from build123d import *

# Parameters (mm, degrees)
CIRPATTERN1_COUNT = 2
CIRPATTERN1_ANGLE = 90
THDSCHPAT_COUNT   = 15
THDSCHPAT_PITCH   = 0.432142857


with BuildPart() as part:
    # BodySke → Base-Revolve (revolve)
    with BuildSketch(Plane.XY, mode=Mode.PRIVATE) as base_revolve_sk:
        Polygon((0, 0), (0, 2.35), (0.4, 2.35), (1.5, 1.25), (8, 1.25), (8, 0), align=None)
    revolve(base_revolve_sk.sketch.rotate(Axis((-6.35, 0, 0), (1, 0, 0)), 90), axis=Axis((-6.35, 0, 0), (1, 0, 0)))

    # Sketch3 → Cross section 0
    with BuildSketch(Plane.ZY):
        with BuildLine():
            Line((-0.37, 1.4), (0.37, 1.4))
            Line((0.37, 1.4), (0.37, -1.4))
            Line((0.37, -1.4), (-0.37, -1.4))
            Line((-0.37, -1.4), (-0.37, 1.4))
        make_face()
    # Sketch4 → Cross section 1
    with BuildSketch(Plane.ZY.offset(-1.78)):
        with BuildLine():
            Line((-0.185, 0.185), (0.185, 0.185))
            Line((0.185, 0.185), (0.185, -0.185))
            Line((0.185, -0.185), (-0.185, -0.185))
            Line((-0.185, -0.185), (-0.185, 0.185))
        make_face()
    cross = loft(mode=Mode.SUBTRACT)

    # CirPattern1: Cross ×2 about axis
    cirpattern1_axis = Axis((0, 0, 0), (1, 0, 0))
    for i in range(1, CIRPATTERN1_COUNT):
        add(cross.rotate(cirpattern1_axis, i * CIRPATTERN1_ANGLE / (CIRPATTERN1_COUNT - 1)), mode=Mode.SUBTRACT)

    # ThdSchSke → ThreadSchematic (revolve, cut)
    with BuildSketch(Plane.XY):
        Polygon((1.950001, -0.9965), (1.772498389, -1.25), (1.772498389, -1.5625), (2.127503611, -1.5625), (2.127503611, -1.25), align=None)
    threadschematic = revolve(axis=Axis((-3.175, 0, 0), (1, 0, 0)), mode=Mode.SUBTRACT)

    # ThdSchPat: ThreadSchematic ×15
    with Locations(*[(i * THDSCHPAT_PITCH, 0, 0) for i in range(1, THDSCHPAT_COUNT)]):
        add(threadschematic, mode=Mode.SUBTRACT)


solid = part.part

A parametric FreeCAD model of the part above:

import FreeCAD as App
import Part
import Sketcher

V = App.Vector
Q = App.Units.Quantity

doc = App.newDocument("Part")
body = doc.addObject("PartDesign::Body", "Body")

# Sketch on XY plane
sketch1 = body.newObject("Sketcher::SketchObject", "Sketch")
sketch1.AttachmentSupport = (doc.getObject("XY_Plane"), [""])
sketch1.MapMode = "FlatFace"
sketch1.addGeometry(Part.LineSegment(V(0, 2.35, 0), V(0, 0, 0)), False)
sketch1.addGeometry(Part.LineSegment(V(0, 0, 0), V(8, 0, 0)), False)
sketch1.addGeometry(Part.LineSegment(V(8, 0, 0), V(8, 1.25, 0)), False)
sketch1.addGeometry(Part.LineSegment(V(8, 1.25, 0), V(1.5, 1.25, 0)), False)
sketch1.addGeometry(Part.LineSegment(V(1.5, 1.25, 0), V(0.4, 2.35, 0)), False)
sketch1.addGeometry(Part.LineSegment(V(0.4, 2.35, 0), V(0, 2.35, 0)), False)
sketch1.addConstraint(Sketcher.Constraint("Coincident", 0, 2, 1, 1))
sketch1.addConstraint(Sketcher.Constraint("Coincident", 1, 2, 2, 1))
sketch1.addConstraint(Sketcher.Constraint("Coincident", 2, 2, 3, 1))
sketch1.addConstraint(Sketcher.Constraint("Coincident", 3, 2, 4, 1))
sketch1.addConstraint(Sketcher.Constraint("Coincident", 4, 2, 5, 1))
sketch1.addConstraint(Sketcher.Constraint("Coincident", 5, 2, 0, 1))
sketch1.addConstraint(Sketcher.Constraint("Vertical", 0))
sketch1.addConstraint(Sketcher.Constraint("Horizontal", 1))
sketch1.addConstraint(Sketcher.Constraint("Vertical", 2))
sketch1.addConstraint(Sketcher.Constraint("Horizontal", 3))
sketch1.addConstraint(Sketcher.Constraint("Horizontal", 5))
sketch1.addConstraint(Sketcher.Constraint("Coincident", 0, 2, -1, 1))
sketch1.addConstraint(Sketcher.Constraint("DistanceX", 1, 1, 1, 2, 8.0))
sketch1.addConstraint(Sketcher.Constraint("Angle", 4, Q("135 deg")))
sketch1.addConstraint(Sketcher.Constraint("DistanceX", 3, 2, 3, 1, 6.5))
sketch1.addConstraint(Sketcher.Constraint("DistanceX", 5, 2, 5, 1, 0.4))
sketch1.addConstraint(Sketcher.Constraint("DistanceY", 0, 2, 0, 1, 2.35))
revolution = body.newObject("PartDesign::Revolution", "Revolution")
revolution.Profile = sketch1
revolution.ReferenceAxis = (sketch1, ["H_Axis"])
revolution.Angle = 360

# Sketch on YZ plane
sketch2 = body.newObject("Sketcher::SketchObject", "Sketch001")
sketch2.AttachmentSupport = (doc.getObject("YZ_Plane"), [""])
sketch2.MapMode = "FlatFace"
sketch2.addGeometry(Part.LineSegment(V(1.4, 0.37, 0), V(1.4, -0.37, 0)), False)
sketch2.addGeometry(Part.LineSegment(V(1.4, -0.37, 0), V(-1.4, -0.37, 0)), False)
sketch2.addGeometry(Part.LineSegment(V(-1.4, -0.37, 0), V(-1.4, 0.37, 0)), False)
sketch2.addGeometry(Part.LineSegment(V(-1.4, 0.37, 0), V(1.4, 0.37, 0)), False)
sketch2.addConstraint(Sketcher.Constraint("Coincident", 0, 2, 1, 1))
sketch2.addConstraint(Sketcher.Constraint("Coincident", 1, 2, 2, 1))
sketch2.addConstraint(Sketcher.Constraint("Coincident", 2, 2, 3, 1))
sketch2.addConstraint(Sketcher.Constraint("Coincident", 3, 2, 0, 1))
sketch2.addConstraint(Sketcher.Constraint("Vertical", 0))
sketch2.addConstraint(Sketcher.Constraint("Horizontal", 1))
sketch2.addConstraint(Sketcher.Constraint("Vertical", 2))
sketch2.addConstraint(Sketcher.Constraint("Horizontal", 3))
sketch2.addConstraint(Sketcher.Constraint("Symmetric", 0, 2, 2, 2, -1, 1))
sketch2.addConstraint(Sketcher.Constraint("DistanceX", 1, 2, 1, 1, 2.8))
sketch2.addConstraint(Sketcher.Constraint("DistanceY", 0, 2, 0, 1, 0.74))

# Sketch on YZ plane
sketch3 = body.newObject("Sketcher::SketchObject", "Sketch002")
sketch3.AttachmentSupport = (doc.getObject("YZ_Plane"), [""])
sketch3.MapMode = "FlatFace"
sketch3.AttachmentOffset = App.Placement(V(0, 0, 1.78), App.Rotation())
sketch3.addGeometry(Part.LineSegment(V(0.185, 0.185, 0), V(0.185, -0.185, 0)), False)
sketch3.addGeometry(Part.LineSegment(V(0.185, -0.185, 0), V(-0.185, -0.185, 0)), False)
sketch3.addGeometry(Part.LineSegment(V(-0.185, -0.185, 0), V(-0.185, 0.185, 0)), False)
sketch3.addGeometry(Part.LineSegment(V(-0.185, 0.185, 0), V(0.185, 0.185, 0)), False)
sketch3.addConstraint(Sketcher.Constraint("Coincident", 0, 2, 1, 1))
sketch3.addConstraint(Sketcher.Constraint("Coincident", 1, 2, 2, 1))
sketch3.addConstraint(Sketcher.Constraint("Coincident", 2, 2, 3, 1))
sketch3.addConstraint(Sketcher.Constraint("Coincident", 3, 2, 0, 1))
sketch3.addConstraint(Sketcher.Constraint("Vertical", 0))
sketch3.addConstraint(Sketcher.Constraint("Horizontal", 1))
sketch3.addConstraint(Sketcher.Constraint("Vertical", 2))
sketch3.addConstraint(Sketcher.Constraint("Horizontal", 3))
sketch3.addConstraint(Sketcher.Constraint("Symmetric", 0, 2, 2, 2, -1, 1))
sketch3.addConstraint(Sketcher.Constraint("Equal", 3, 0))
sketch3.addConstraint(Sketcher.Constraint("DistanceX", 1, 2, 1, 1, 0.37))

subtractiveloft = body.newObject("PartDesign::SubtractiveLoft", "SubtractiveLoft")
subtractiveloft.Profile = sketch2
subtractiveloft.Sections = [sketch3]
doc.recompute()

polarpattern = body.newObject("PartDesign::PolarPattern", "PolarPattern")
polarpattern.Originals = [subtractiveloft]
polarpattern.Axis = (doc.getObject("X_Axis"), [""])
polarpattern.Angle = 90
polarpattern.Occurrences = 2
body.Tip = polarpattern

# Sketch on XY plane
sketch4 = body.newObject("Sketcher::SketchObject", "Sketch003")
sketch4.AttachmentSupport = (doc.getObject("XY_Plane"), [""])
sketch4.MapMode = "FlatFace"
sketch4.addGeometry(Part.LineSegment(V(1.950001, -0.9965, 0), V(1.772498, -1.25, 0)), False)
sketch4.addGeometry(Part.LineSegment(V(1.772498, -1.25, 0), V(1.772498, -1.5625, 0)), False)
sketch4.addGeometry(Part.LineSegment(V(1.772498, -1.5625, 0), V(2.127504, -1.5625, 0)), False)
sketch4.addGeometry(Part.LineSegment(V(2.127504, -1.5625, 0), V(2.127504, -1.25, 0)), False)
sketch4.addGeometry(Part.LineSegment(V(2.127504, -1.25, 0), V(1.950001, -0.9965, 0)), False)
sketch4.addConstraint(Sketcher.Constraint("Coincident", 0, 2, 1, 1))
sketch4.addConstraint(Sketcher.Constraint("Coincident", 1, 2, 2, 1))
sketch4.addConstraint(Sketcher.Constraint("Coincident", 2, 2, 3, 1))
sketch4.addConstraint(Sketcher.Constraint("Coincident", 3, 2, 4, 1))
sketch4.addConstraint(Sketcher.Constraint("Coincident", 4, 2, 0, 1))
sketch4.addConstraint(Sketcher.Constraint("Vertical", 1))
sketch4.addConstraint(Sketcher.Constraint("Horizontal", 2))
sketch4.addConstraint(Sketcher.Constraint("Vertical", 3))
sketch4.addConstraint(Sketcher.Constraint("Horizontal", 0, 2, 3, 2))
sketch4.addConstraint(Sketcher.Constraint("Equal", 0, 4))
sketch4.addConstraint(Sketcher.Constraint("Angle", 0, Q("-125 deg")))
sketch4.addConstraint(Sketcher.Constraint("DistanceY", 0, 2, -1, 1, 1.25))
sketch4.addConstraint(Sketcher.Constraint("DistanceX", -1, 1, 4, 2, 1.950001))
sketch4.addConstraint(Sketcher.Constraint("DistanceY", 1, 2, 1, 1, 0.3125))
sketch4.addConstraint(Sketcher.Constraint("DistanceY", 2, 2, 4, 2, 0.566))
groove = body.newObject("PartDesign::Groove", "Groove")
groove.Profile = sketch4
groove.ReferenceAxis = (sketch4, ["H_Axis"])
groove.Angle = 360
doc.recompute()

linearpattern = body.newObject("PartDesign::LinearPattern", "LinearPattern")
linearpattern.Originals = [groove]
linearpattern.Direction = (doc.getObject("X_Axis"), [""])
linearpattern.Mode = "offset"
linearpattern.Offset = 0.432143
linearpattern.Occurrences = 15
body.Tip = linearpattern

doc.recompute()
